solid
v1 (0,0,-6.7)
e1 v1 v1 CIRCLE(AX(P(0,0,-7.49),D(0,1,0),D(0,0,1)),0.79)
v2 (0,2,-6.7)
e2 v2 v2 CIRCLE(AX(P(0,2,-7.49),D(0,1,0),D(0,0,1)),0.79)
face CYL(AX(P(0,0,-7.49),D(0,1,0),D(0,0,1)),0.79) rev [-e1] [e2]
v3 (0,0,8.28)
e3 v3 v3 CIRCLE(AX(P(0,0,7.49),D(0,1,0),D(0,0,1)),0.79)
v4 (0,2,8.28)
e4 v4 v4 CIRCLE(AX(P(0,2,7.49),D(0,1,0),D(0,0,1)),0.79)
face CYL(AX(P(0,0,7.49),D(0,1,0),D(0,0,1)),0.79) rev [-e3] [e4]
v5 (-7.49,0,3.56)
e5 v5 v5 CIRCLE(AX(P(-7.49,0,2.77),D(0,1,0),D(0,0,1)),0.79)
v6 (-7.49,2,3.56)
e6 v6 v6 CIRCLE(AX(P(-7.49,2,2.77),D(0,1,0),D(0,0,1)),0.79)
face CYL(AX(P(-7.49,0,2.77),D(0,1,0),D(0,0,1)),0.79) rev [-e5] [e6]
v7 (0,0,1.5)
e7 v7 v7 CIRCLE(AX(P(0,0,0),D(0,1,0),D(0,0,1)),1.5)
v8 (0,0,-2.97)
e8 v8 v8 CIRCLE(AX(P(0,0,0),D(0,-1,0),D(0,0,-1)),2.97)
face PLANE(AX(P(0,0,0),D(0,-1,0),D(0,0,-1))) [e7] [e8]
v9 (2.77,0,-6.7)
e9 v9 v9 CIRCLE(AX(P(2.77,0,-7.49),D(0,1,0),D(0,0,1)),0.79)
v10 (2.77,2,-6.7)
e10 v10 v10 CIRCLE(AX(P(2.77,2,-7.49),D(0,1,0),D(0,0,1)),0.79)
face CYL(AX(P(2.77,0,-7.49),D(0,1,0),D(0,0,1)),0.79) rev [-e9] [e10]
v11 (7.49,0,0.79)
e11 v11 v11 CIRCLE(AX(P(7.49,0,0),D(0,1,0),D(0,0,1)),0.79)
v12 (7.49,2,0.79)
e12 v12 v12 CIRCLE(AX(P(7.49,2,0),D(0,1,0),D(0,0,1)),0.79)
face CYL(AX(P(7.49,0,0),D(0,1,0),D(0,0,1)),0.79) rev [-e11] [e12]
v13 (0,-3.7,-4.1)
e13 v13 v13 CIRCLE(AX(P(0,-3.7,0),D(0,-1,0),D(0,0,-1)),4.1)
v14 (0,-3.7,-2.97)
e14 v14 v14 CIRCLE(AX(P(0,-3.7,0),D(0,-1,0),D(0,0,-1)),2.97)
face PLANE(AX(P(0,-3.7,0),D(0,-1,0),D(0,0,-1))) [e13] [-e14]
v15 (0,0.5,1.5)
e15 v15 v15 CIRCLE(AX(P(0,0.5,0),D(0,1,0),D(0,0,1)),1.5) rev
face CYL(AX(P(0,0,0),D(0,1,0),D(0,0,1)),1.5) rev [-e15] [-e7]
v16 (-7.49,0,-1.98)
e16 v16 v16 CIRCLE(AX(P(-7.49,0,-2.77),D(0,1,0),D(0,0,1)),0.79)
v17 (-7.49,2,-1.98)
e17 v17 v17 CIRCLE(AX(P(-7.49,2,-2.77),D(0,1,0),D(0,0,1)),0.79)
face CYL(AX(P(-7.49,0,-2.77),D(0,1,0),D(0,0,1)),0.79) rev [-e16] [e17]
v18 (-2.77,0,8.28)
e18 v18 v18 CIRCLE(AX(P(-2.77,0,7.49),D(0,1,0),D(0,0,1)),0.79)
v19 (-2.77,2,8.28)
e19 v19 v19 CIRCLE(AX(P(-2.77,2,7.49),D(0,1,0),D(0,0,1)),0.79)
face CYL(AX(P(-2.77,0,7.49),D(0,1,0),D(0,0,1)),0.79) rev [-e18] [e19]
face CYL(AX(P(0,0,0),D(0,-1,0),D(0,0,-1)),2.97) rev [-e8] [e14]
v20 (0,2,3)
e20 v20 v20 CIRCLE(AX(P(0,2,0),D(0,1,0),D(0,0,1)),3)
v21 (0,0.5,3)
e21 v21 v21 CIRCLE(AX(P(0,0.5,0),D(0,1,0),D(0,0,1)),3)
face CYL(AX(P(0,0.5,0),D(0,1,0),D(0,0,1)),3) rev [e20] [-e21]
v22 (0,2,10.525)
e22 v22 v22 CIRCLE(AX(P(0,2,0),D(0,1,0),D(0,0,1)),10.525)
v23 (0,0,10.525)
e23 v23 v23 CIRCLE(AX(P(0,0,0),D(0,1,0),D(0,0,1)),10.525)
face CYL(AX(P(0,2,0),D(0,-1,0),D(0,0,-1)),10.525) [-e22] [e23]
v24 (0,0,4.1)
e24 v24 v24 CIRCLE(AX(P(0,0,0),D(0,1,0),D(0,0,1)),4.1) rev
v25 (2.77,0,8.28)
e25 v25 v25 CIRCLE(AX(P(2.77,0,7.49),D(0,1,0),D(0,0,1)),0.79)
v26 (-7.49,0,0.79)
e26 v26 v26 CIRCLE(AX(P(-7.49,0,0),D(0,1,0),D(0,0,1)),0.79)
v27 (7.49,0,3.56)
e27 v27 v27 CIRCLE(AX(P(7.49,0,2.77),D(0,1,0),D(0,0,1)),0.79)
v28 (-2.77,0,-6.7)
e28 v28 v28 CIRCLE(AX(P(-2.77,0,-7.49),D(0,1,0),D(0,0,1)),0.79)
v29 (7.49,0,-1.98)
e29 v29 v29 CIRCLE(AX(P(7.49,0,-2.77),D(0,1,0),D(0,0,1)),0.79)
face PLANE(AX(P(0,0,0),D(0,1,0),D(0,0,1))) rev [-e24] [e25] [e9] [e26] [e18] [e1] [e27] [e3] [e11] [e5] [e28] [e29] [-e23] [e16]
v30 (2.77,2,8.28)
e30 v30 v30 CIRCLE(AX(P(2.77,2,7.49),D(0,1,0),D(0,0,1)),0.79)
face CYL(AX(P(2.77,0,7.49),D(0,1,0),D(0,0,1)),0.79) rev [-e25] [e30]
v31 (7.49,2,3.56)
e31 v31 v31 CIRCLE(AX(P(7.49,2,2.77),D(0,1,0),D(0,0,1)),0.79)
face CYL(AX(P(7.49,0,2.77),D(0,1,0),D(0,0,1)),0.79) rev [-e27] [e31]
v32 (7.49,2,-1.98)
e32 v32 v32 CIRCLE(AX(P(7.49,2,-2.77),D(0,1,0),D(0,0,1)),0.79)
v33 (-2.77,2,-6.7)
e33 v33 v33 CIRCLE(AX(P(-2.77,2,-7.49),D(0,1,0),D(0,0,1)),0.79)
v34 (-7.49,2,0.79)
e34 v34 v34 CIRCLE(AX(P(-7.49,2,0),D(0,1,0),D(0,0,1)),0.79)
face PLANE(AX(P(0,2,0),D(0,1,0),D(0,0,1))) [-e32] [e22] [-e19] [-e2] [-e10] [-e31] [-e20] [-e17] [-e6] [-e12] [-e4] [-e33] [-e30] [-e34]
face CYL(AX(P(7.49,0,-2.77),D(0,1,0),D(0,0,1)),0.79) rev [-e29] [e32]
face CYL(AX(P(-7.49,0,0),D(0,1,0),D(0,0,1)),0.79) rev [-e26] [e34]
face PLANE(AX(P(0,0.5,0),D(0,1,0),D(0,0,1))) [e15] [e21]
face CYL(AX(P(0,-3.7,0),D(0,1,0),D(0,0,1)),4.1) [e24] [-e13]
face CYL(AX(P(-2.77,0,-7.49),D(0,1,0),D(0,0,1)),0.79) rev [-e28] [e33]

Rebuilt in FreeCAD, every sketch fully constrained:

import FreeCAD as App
import Part
import Sketcher

V = App.Vector
Q = App.Units.Quantity

doc = App.newDocument("Part")
body = doc.addObject("PartDesign::Body", "Body")

# Sketch on XZ plane
sketch1 = doc.addObject("Sketcher::SketchObject", "Sketch")
body.addObject(sketch1)
sketch1.AttachmentSupport = (doc.XZ_Plane, [""])
sketch1.MapMode = "FlatFace"
sketch1.addGeometry(Part.Circle(V(0, 0, 0), V(0, 0, 1), 11), False)
sketch1.addConstraint(Sketcher.Constraint("Coincident", 0, 3, -1, 1))
sketch1.addConstraint(Sketcher.Constraint("Diameter", 0, Q("21.05 mm")))
pad1 = doc.addObject("PartDesign::Pad", "Pad")
body.addObject(pad1)
pad1.Profile = sketch1
pad1.Length = 2
pad1.Reversed = True

# Sketch on XZ plane
sketch2 = doc.addObject("Sketcher::SketchObject", "Sketch001")
body.addObject(sketch2)
sketch2.AttachmentSupport = (doc.XZ_Plane, [""])
sketch2.MapMode = "FlatFace"
sketch2.addGeometry(Part.Circle(V(0, 0, 0), V(0, 0, 1), 4.1), False)
sketch2.addConstraint(Sketcher.Constraint("Coincident", 0, 3, -1, 1))
sketch2.addConstraint(Sketcher.Constraint("Diameter", 0, Q("8.2 mm")))
pad2 = doc.addObject("PartDesign::Pad", "Pad001")
body.addObject(pad2)
pad2.Profile = sketch2
pad2.Length = 3.7

# Sketch on XZ plane
sketch3 = doc.addObject("Sketcher::SketchObject", "Sketch002")
body.addObject(sketch3)
sketch3.AttachmentSupport = (doc.XZ_Plane, [""])
sketch3.MapMode = "FlatFace"
sketch3.AttachmentOffset = App.Placement(V(0, 0, 3.7), App.Rotation())
sketch3.addGeometry(Part.Circle(V(0, 0, 0), V(0, 0, 1), 3), False)
sketch3.addConstraint(Sketcher.Constraint("Coincident", 0, 3, -1, 1))
sketch3.addConstraint(Sketcher.Constraint("Diameter", 0, Q("5.94 mm")))
pocket1 = doc.addObject("PartDesign::Pocket", "Pocket")
body.addObject(pocket1)
pocket1.Profile = sketch3
pocket1.Length = 3.7

# Sketch on XZ plane
sketch4 = doc.addObject("Sketcher::SketchObject", "Sketch003")
body.addObject(sketch4)
sketch4.AttachmentSupport = (doc.XZ_Plane, [""])
sketch4.MapMode = "FlatFace"
sketch4.AttachmentOffset = App.Placement(V(0, 0, -2), App.Rotation())
sketch4.addGeometry(Part.Circle(V(0, 0, 0), V(0, 0, 1), 1.5), False)
sketch4.addConstraint(Sketcher.Constraint("Coincident", 0, 3, -1, 1))
sketch4.addConstraint(Sketcher.Constraint("Diameter", 0, Q("3 mm")))
pocket2 = doc.addObject("PartDesign::Pocket", "Pocket001")
body.addObject(pocket2)
pocket2.Profile = sketch4
pocket2.Length = 2
pocket2.Reversed = True

# Sketch on XZ plane
sketch5 = doc.addObject("Sketcher::SketchObject", "Sketch004")
body.addObject(sketch5)
sketch5.AttachmentSupport = (doc.XZ_Plane, [""])
sketch5.MapMode = "FlatFace"
sketch5.AttachmentOffset = App.Placement(V(0, 0, -2), App.Rotation())
sketch5.addGeometry(Part.Circle(V(0, 0, 0), V(0, 0, 1), 3), False)
sketch5.addConstraint(Sketcher.Constraint("Coincident", 0, 3, -1, 1))
sketch5.addConstraint(Sketcher.Constraint("Diameter", 0, Q("6 mm")))
pocket3 = doc.addObject("PartDesign::Pocket", "Pocket002")
body.addObject(pocket3)
pocket3.Profile = sketch5
pocket3.Length = 1.5
pocket3.Reversed = True

# Sketch on XZ plane
sketch6 = doc.addObject("Sketcher::SketchObject", "Sketch005")
body.addObject(sketch6)
sketch6.AttachmentSupport = (doc.XZ_Plane, [""])
sketch6.MapMode = "FlatFace"
sketch6.AttachmentOffset = App.Placement(V(0, 0, -2), App.Rotation())
sketch6.addGeometry(Part.Circle(V(0, -7.5, 0), V(0, 0, 1), 0.8), False)
sketch6.addConstraint(Sketcher.Constraint("PointOnObject", 0, 3, -2))
sketch6.addConstraint(Sketcher.Constraint("Diameter", 0, Q("1.58 mm")))
sketch6.addConstraint(Sketcher.Constraint("DistanceY", 0, 3, -1, 1, Q("7.49 mm")))
pocket4 = doc.addObject("PartDesign::Pocket", "Pocket003")
body.addObject(pocket4)
pocket4.Profile = sketch6
pocket4.Length = 2
pocket4.Reversed = True

# Sketch on XZ plane
sketch7 = doc.addObject("Sketcher::SketchObject", "Sketch006")
body.addObject(sketch7)
sketch7.AttachmentSupport = (doc.XZ_Plane, [""])
sketch7.MapMode = "FlatFace"
sketch7.AttachmentOffset = App.Placement(V(0, 0, -2), App.Rotation())
sketch7.addGeometry(Part.Circle(V(2.8, -7.5, 0), V(0, 0, 1), 0.8), False)
sketch7.addConstraint(Sketcher.Constraint("Diameter", 0, Q("1.58 mm")))
sketch7.addConstraint(Sketcher.Constraint("DistanceX", -1, 1, 0, 3, Q("2.77 mm")))
sketch7.addConstraint(Sketcher.Constraint("DistanceY", 0, 3, -1, 1, Q("7.49 mm")))
pocket5 = doc.addObject("PartDesign::Pocket", "Pocket004")
body.addObject(pocket5)
pocket5.Profile = sketch7
pocket5.Length = 2
pocket5.Reversed = True

# Sketch on XZ plane
sketch8 = doc.addObject("Sketcher::SketchObject", "Sketch007")
body.addObject(sketch8)
sketch8.AttachmentSupport = (doc.XZ_Plane, [""])
sketch8.MapMode = "FlatFace"
sketch8.AttachmentOffset = App.Placement(V(0, 0, -2), App.Rotation())
sketch8.addGeometry(Part.Circle(V(-2.8, -7.5, 0), V(0, 0, 1), 0.8), False)
sketch8.addConstraint(Sketcher.Constraint("Diameter", 0, Q("1.58 mm")))
sketch8.addConstraint(Sketcher.Constraint("DistanceX", 0, 3, -1, 1, Q("2.77 mm")))
sketch8.addConstraint(Sketcher.Constraint("DistanceY", 0, 3, -1, 1, Q("7.49 mm")))
pocket6 = doc.addObject("PartDesign::Pocket", "Pocket005")
body.addObject(pocket6)
pocket6.Profile = sketch8
pocket6.Length = 2
pocket6.Reversed = True

# Sketch on XZ plane
sketch9 = doc.addObject("Sketcher::SketchObject", "Sketch008")
body.addObject(sketch9)
sketch9.AttachmentSupport = (doc.XZ_Plane, [""])
sketch9.MapMode = "FlatFace"
sketch9.AttachmentOffset = App.Placement(V(0, 0, -2), App.Rotation())
sketch9.addGeometry(Part.Circle(V(7.5, 0, 0), V(0, 0, 1), 0.8), False)
sketch9.addConstraint(Sketcher.Constraint("PointOnObject", 0, 3, -1))
sketch9.addConstraint(Sketcher.Constraint("Diameter", 0, Q("1.58 mm")))
sketch9.addConstraint(Sketcher.Constraint("DistanceX", -1, 1, 0, 3, Q("7.49 mm")))
pocket7 = doc.addObject("PartDesign::Pocket", "Pocket006")
body.addObject(pocket7)
pocket7.Profile = sketch9
pocket7.Length = 2
pocket7.Reversed = True

# Sketch on XZ plane
sketch10 = doc.addObject("Sketcher::SketchObject", "Sketch009")
body.addObject(sketch10)
sketch10.AttachmentSupport = (doc.XZ_Plane, [""])
sketch10.MapMode = "FlatFace"
sketch10.AttachmentOffset = App.Placement(V(0, 0, -2), App.Rotation())
sketch10.addGeometry(Part.Circle(V(7.5, 2.8, 0), V(0, 0, 1), 0.8), False)
sketch10.addConstraint(Sketcher.Constraint("Diameter", 0, Q("1.58 mm")))
sketch10.addConstraint(Sketcher.Constraint("DistanceX", -1, 1, 0, 3, Q("7.49 mm")))
sketch10.addConstraint(Sketcher.Constraint("DistanceY", -1, 1, 0, 3, Q("2.77 mm")))
pocket8 = doc.addObject("PartDesign::Pocket", "Pocket007")
body.addObject(pocket8)
pocket8.Profile = sketch10
pocket8.Length = 2
pocket8.Reversed = True

# Sketch on XZ plane
sketch11 = doc.addObject("Sketcher::SketchObject", "Sketch010")
body.addObject(sketch11)
sketch11.AttachmentSupport = (doc.XZ_Plane, [""])
sketch11.MapMode = "FlatFace"
sketch11.AttachmentOffset = App.Placement(V(0, 0, -2), App.Rotation())
sketch11.addGeometry(Part.Circle(V(7.5, -2.8, 0), V(0, 0, 1), 0.8), False)
sketch11.addConstraint(Sketcher.Constraint("Diameter", 0, Q("1.58 mm")))
sketch11.addConstraint(Sketcher.Constraint("DistanceX", -1, 1, 0, 3, Q("7.49 mm")))
sketch11.addConstraint(Sketcher.Constraint("DistanceY", 0, 3, -1, 1, Q("2.77 mm")))
pocket9 = doc.addObject("PartDesign::Pocket", "Pocket008")
body.addObject(pocket9)
pocket9.Profile = sketch11
pocket9.Length = 2
pocket9.Reversed = True

# Sketch on XZ plane
sketch12 = doc.addObject("Sketcher::SketchObject", "Sketch011")
body.addObject(sketch12)
sketch12.AttachmentSupport = (doc.XZ_Plane, [""])
sketch12.MapMode = "FlatFace"
sketch12.AttachmentOffset = App.Placement(V(0, 0, -2), App.Rotation())
sketch12.addGeometry(Part.Circle(V(0, 7.5, 0), V(0, 0, 1), 0.8), False)
sketch12.addConstraint(Sketcher.Constraint("PointOnObject", 0, 3, -2))
sketch12.addConstraint(Sketcher.Constraint("Diameter", 0, Q("1.58 mm")))
sketch12.addConstraint(Sketcher.Constraint("DistanceY", -1, 1, 0, 3, Q("7.49 mm")))
pocket10 = doc.addObject("PartDesign::Pocket", "Pocket009")
body.addObject(pocket10)
pocket10.Profile = sketch12
pocket10.Length = 2
pocket10.Reversed = True

# Sketch on XZ plane
sketch13 = doc.addObject("Sketcher::SketchObject", "Sketch012")
body.addObject(sketch13)
sketch13.AttachmentSupport = (doc.XZ_Plane, [""])
sketch13.MapMode = "FlatFace"
sketch13.AttachmentOffset = App.Placement(V(0, 0, -2), App.Rotation())
sketch13.addGeometry(Part.Circle(V(2.8, 7.5, 0), V(0, 0, 1), 0.8), False)
sketch13.addConstraint(Sketcher.Constraint("Diameter", 0, Q("1.58 mm")))
sketch13.addConstraint(Sketcher.Constraint("DistanceX", -1, 1, 0, 3, Q("2.77 mm")))
sketch13.addConstraint(Sketcher.Constraint("DistanceY", -1, 1, 0, 3, Q("7.49 mm")))
pocket11 = doc.addObject("PartDesign::Pocket", "Pocket010")
body.addObject(pocket11)
pocket11.Profile = sketch13
pocket11.Length = 2
pocket11.Reversed = True

# Sketch on XZ plane
sketch14 = doc.addObject("Sketcher::SketchObject", "Sketch013")
body.addObject(sketch14)
sketch14.AttachmentSupport = (doc.XZ_Plane, [""])
sketch14.MapMode = "FlatFace"
sketch14.AttachmentOffset = App.Placement(V(0, 0, -2), App.Rotation())
sketch14.addGeometry(Part.Circle(V(-2.8, 7.5, 0), V(0, 0, 1), 0.8), False)
sketch14.addConstraint(Sketcher.Constraint("Diameter", 0, Q("1.58 mm")))
sketch14.addConstraint(Sketcher.Constraint("DistanceX", 0, 3, -1, 1, Q("2.77 mm")))
sketch14.addConstraint(Sketcher.Constraint("DistanceY", -1, 1, 0, 3, Q("7.49 mm")))
pocket12 = doc.addObject("PartDesign::Pocket", "Pocket011")
body.addObject(pocket12)
pocket12.Profile = sketch14
pocket12.Length = 2
pocket12.Reversed = True

# Sketch on XZ plane
sketch15 = doc.addObject("Sketcher::SketchObject", "Sketch014")
body.addObject(sketch15)
sketch15.AttachmentSupport = (doc.XZ_Plane, [""])
sketch15.MapMode = "FlatFace"
sketch15.AttachmentOffset = App.Placement(V(0, 0, -2), App.Rotation())
sketch15.addGeometry(Part.Circle(V(-7.5, 0, 0), V(0, 0, 1), 0.8), False)
sketch15.addConstraint(Sketcher.Constraint("PointOnObject", 0, 3, -1))
sketch15.addConstraint(Sketcher.Constraint("Diameter", 0, Q("1.58 mm")))
sketch15.addConstraint(Sketcher.Constraint("DistanceX", 0, 3, -1, 1, Q("7.49 mm")))
pocket13 = doc.addObject("PartDesign::Pocket", "Pocket012")
body.addObject(pocket13)
pocket13.Profile = sketch15
pocket13.Length = 2
pocket13.Reversed = True

# Sketch on XZ plane
sketch16 = doc.addObject("Sketcher::SketchObject", "Sketch015")
body.addObject(sketch16)
sketch16.AttachmentSupport = (doc.XZ_Plane, [""])
sketch16.MapMode = "FlatFace"
sketch16.AttachmentOffset = App.Placement(V(0, 0, -2), App.Rotation())
sketch16.addGeometry(Part.Circle(V(-7.5, -2.8, 0), V(0, 0, 1), 0.8), False)
sketch16.addConstraint(Sketcher.Constraint("Diameter", 0, Q("1.58 mm")))
sketch16.addConstraint(Sketcher.Constraint("DistanceX", 0, 3, -1, 1, Q("7.49 mm")))
sketch16.addConstraint(Sketcher.Constraint("DistanceY", 0, 3, -1, 1, Q("2.77 mm")))
pocket14 = doc.addObject("PartDesign::Pocket", "Pocket013")
body.addObject(pocket14)
pocket14.Profile = sketch16
pocket14.Length = 2
pocket14.Reversed = True

# Sketch on XZ plane
sketch17 = doc.addObject("Sketcher::SketchObject", "Sketch016")
body.addObject(sketch17)
sketch17.AttachmentSupport = (doc.XZ_Plane, [""])
sketch17.MapMode = "FlatFace"
sketch17.AttachmentOffset = App.Placement(V(0, 0, -2), App.Rotation())
sketch17.addGeometry(Part.Circle(V(-7.5, 2.8, 0), V(0, 0, 1), 0.8), False)
sketch17.addConstraint(Sketcher.Constraint("Diameter", 0, Q("1.58 mm")))
sketch17.addConstraint(Sketcher.Constraint("DistanceX", 0, 3, -1, 1, Q("7.49 mm")))
sketch17.addConstraint(Sketcher.Constraint("DistanceY", -1, 1, 0, 3, Q("2.77 mm")))
pocket15 = doc.addObject("PartDesign::Pocket", "Pocket014")
body.addObject(pocket15)
pocket15.Profile = sketch17
pocket15.Length = 2
pocket15.Reversed = True

doc.recompute()
